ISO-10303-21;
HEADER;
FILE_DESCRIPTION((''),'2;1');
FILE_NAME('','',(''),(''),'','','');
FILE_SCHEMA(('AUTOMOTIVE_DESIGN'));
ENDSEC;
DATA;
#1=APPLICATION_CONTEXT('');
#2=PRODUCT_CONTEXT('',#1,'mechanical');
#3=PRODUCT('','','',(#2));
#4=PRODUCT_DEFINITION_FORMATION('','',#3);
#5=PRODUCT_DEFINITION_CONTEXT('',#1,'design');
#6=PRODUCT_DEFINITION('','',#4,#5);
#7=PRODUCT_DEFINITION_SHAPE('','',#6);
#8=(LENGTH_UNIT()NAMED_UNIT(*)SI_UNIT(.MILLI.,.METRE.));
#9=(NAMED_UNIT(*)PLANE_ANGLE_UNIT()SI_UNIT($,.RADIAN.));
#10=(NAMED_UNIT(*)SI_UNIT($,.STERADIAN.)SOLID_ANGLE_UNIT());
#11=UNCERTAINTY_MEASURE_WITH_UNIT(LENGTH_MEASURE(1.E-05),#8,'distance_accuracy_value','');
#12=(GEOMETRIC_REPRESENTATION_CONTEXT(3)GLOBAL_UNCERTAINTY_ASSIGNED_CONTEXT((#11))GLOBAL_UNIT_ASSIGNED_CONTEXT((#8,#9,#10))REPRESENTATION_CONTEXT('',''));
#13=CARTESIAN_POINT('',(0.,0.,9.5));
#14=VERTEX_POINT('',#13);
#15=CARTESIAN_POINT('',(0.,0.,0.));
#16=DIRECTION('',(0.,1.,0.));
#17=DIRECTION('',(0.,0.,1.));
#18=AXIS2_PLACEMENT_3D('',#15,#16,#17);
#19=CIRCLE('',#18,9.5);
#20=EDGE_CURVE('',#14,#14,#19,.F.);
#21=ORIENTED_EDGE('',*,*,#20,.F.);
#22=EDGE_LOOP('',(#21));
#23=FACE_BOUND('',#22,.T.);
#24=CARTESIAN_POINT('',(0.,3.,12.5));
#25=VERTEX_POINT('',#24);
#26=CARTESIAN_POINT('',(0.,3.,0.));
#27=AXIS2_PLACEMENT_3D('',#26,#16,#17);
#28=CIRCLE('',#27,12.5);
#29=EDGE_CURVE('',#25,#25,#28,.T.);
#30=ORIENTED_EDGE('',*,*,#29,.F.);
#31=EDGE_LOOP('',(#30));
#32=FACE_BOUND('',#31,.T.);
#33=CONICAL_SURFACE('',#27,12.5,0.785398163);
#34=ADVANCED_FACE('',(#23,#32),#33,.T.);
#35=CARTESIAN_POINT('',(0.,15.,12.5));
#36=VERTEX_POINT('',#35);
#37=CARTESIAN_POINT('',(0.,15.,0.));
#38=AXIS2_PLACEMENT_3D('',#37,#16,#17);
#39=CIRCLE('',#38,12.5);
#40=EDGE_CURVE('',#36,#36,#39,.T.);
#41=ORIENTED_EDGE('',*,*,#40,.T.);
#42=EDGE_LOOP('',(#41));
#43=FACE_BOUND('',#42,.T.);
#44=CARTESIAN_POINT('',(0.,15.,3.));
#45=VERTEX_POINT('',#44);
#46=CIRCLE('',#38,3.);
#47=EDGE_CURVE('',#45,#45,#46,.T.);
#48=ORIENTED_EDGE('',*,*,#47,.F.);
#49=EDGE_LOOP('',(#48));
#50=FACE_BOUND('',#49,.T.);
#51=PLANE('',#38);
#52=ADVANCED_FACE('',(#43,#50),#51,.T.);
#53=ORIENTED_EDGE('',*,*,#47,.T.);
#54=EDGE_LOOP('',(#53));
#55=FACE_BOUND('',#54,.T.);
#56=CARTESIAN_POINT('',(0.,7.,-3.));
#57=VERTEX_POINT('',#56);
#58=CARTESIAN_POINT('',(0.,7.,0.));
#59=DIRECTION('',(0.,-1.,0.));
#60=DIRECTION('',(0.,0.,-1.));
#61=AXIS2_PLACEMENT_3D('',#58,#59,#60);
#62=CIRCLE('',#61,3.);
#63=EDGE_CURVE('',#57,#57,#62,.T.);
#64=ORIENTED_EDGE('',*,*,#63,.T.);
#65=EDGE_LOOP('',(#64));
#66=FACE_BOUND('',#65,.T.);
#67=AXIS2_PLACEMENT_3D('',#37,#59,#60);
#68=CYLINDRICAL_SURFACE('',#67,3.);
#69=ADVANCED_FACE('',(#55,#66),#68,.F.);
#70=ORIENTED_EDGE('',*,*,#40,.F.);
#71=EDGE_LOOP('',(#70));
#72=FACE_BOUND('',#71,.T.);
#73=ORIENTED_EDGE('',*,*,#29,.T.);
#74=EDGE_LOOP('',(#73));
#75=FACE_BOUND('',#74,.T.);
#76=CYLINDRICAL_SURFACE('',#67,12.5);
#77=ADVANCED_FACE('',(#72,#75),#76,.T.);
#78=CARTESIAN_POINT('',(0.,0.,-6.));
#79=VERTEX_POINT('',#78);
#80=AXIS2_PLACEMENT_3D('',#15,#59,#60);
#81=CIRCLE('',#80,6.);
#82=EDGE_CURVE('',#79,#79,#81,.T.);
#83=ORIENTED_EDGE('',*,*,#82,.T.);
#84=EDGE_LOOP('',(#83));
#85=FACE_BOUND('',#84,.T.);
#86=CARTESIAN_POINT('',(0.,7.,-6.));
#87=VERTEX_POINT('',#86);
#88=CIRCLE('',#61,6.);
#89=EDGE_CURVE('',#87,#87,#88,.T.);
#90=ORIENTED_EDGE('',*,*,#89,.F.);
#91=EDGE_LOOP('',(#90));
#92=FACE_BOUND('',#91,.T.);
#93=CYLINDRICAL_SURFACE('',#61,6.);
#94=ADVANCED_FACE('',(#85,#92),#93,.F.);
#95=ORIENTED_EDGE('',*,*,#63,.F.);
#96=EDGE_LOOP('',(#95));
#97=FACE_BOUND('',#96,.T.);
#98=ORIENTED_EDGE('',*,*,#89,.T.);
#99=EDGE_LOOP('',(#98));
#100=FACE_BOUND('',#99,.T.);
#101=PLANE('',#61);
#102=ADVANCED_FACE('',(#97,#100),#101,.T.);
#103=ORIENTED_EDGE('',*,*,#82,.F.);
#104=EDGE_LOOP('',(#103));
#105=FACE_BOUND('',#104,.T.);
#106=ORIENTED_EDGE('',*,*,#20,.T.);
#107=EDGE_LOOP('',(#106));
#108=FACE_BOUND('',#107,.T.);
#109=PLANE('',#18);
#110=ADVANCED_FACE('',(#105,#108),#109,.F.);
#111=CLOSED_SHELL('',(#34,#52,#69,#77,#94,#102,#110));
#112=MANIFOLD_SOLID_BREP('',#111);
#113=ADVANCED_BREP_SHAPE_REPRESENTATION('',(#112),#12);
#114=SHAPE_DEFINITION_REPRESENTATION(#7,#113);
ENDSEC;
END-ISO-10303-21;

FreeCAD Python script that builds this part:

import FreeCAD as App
import Part
import Sketcher
from FreeCAD import Vector


def edges_at(feature, points):
    """Names of the edges that pass closest to the given points."""
    edges = feature.Shape.Edges
    near = lambda p: min(range(len(edges)), key=lambda i: edges[i].distToShape(Part.Vertex(*p))[0])
    return sorted({f"Edge{near(p) + 1}" for p in points})

doc = App.newDocument("Part")
body = doc.addObject("PartDesign::Body", "Body")

sketch1 = body.newObject("Sketcher::SketchObject", "Sketch")
sketch1.AttachmentSupport = (doc.getObject("XZ_Plane"), [""])
sketch1.MapMode = "FlatFace"
sketch1.addGeometry([
    Part.Circle(Vector(0, 0, 0), Vector(0, 0, 1), 12.5),
    Part.Circle(Vector(0, 0, 0), Vector(0, 0, 1), 3),
], False)
sketch1.addConstraint([
    Sketcher.Constraint("Coincident", 0, 3, -1, 1),
    Sketcher.Constraint("Coincident", 1, 3, -1, 1),
    Sketcher.Constraint("Diameter", 0, 25.0),
    Sketcher.Constraint("Diameter", 1, 6.0),
])
pad1 = body.newObject("PartDesign::Pad", "Pad")
pad1.Profile = sketch1
pad1.Length = 15
pad1.Reversed = True
doc.recompute()

chamfer = body.newObject("PartDesign::Chamfer", "Chamfer")
chamfer.Base = (pad1, edges_at(pad1, [(0, 0, -12.5)]))
chamfer.Size = 3

sketch2 = body.newObject("Sketcher::SketchObject", "Sketch001")
sketch2.AttachmentSupport = (doc.getObject("XZ_Plane"), [""])
sketch2.MapMode = "FlatFace"
sketch2.addGeometry(Part.Circle(Vector(0, 0, 0), Vector(0, 0, 1), 6), False)
sketch2.addConstraint([
    Sketcher.Constraint("Coincident", 0, 3, -1, 1),
    Sketcher.Constraint("Diameter", 0, 12.0),
])
pocket1 = body.newObject("PartDesign::Pocket", "Pocket")
pocket1.Profile = sketch2
pocket1.Length = 7

doc.recompute()
